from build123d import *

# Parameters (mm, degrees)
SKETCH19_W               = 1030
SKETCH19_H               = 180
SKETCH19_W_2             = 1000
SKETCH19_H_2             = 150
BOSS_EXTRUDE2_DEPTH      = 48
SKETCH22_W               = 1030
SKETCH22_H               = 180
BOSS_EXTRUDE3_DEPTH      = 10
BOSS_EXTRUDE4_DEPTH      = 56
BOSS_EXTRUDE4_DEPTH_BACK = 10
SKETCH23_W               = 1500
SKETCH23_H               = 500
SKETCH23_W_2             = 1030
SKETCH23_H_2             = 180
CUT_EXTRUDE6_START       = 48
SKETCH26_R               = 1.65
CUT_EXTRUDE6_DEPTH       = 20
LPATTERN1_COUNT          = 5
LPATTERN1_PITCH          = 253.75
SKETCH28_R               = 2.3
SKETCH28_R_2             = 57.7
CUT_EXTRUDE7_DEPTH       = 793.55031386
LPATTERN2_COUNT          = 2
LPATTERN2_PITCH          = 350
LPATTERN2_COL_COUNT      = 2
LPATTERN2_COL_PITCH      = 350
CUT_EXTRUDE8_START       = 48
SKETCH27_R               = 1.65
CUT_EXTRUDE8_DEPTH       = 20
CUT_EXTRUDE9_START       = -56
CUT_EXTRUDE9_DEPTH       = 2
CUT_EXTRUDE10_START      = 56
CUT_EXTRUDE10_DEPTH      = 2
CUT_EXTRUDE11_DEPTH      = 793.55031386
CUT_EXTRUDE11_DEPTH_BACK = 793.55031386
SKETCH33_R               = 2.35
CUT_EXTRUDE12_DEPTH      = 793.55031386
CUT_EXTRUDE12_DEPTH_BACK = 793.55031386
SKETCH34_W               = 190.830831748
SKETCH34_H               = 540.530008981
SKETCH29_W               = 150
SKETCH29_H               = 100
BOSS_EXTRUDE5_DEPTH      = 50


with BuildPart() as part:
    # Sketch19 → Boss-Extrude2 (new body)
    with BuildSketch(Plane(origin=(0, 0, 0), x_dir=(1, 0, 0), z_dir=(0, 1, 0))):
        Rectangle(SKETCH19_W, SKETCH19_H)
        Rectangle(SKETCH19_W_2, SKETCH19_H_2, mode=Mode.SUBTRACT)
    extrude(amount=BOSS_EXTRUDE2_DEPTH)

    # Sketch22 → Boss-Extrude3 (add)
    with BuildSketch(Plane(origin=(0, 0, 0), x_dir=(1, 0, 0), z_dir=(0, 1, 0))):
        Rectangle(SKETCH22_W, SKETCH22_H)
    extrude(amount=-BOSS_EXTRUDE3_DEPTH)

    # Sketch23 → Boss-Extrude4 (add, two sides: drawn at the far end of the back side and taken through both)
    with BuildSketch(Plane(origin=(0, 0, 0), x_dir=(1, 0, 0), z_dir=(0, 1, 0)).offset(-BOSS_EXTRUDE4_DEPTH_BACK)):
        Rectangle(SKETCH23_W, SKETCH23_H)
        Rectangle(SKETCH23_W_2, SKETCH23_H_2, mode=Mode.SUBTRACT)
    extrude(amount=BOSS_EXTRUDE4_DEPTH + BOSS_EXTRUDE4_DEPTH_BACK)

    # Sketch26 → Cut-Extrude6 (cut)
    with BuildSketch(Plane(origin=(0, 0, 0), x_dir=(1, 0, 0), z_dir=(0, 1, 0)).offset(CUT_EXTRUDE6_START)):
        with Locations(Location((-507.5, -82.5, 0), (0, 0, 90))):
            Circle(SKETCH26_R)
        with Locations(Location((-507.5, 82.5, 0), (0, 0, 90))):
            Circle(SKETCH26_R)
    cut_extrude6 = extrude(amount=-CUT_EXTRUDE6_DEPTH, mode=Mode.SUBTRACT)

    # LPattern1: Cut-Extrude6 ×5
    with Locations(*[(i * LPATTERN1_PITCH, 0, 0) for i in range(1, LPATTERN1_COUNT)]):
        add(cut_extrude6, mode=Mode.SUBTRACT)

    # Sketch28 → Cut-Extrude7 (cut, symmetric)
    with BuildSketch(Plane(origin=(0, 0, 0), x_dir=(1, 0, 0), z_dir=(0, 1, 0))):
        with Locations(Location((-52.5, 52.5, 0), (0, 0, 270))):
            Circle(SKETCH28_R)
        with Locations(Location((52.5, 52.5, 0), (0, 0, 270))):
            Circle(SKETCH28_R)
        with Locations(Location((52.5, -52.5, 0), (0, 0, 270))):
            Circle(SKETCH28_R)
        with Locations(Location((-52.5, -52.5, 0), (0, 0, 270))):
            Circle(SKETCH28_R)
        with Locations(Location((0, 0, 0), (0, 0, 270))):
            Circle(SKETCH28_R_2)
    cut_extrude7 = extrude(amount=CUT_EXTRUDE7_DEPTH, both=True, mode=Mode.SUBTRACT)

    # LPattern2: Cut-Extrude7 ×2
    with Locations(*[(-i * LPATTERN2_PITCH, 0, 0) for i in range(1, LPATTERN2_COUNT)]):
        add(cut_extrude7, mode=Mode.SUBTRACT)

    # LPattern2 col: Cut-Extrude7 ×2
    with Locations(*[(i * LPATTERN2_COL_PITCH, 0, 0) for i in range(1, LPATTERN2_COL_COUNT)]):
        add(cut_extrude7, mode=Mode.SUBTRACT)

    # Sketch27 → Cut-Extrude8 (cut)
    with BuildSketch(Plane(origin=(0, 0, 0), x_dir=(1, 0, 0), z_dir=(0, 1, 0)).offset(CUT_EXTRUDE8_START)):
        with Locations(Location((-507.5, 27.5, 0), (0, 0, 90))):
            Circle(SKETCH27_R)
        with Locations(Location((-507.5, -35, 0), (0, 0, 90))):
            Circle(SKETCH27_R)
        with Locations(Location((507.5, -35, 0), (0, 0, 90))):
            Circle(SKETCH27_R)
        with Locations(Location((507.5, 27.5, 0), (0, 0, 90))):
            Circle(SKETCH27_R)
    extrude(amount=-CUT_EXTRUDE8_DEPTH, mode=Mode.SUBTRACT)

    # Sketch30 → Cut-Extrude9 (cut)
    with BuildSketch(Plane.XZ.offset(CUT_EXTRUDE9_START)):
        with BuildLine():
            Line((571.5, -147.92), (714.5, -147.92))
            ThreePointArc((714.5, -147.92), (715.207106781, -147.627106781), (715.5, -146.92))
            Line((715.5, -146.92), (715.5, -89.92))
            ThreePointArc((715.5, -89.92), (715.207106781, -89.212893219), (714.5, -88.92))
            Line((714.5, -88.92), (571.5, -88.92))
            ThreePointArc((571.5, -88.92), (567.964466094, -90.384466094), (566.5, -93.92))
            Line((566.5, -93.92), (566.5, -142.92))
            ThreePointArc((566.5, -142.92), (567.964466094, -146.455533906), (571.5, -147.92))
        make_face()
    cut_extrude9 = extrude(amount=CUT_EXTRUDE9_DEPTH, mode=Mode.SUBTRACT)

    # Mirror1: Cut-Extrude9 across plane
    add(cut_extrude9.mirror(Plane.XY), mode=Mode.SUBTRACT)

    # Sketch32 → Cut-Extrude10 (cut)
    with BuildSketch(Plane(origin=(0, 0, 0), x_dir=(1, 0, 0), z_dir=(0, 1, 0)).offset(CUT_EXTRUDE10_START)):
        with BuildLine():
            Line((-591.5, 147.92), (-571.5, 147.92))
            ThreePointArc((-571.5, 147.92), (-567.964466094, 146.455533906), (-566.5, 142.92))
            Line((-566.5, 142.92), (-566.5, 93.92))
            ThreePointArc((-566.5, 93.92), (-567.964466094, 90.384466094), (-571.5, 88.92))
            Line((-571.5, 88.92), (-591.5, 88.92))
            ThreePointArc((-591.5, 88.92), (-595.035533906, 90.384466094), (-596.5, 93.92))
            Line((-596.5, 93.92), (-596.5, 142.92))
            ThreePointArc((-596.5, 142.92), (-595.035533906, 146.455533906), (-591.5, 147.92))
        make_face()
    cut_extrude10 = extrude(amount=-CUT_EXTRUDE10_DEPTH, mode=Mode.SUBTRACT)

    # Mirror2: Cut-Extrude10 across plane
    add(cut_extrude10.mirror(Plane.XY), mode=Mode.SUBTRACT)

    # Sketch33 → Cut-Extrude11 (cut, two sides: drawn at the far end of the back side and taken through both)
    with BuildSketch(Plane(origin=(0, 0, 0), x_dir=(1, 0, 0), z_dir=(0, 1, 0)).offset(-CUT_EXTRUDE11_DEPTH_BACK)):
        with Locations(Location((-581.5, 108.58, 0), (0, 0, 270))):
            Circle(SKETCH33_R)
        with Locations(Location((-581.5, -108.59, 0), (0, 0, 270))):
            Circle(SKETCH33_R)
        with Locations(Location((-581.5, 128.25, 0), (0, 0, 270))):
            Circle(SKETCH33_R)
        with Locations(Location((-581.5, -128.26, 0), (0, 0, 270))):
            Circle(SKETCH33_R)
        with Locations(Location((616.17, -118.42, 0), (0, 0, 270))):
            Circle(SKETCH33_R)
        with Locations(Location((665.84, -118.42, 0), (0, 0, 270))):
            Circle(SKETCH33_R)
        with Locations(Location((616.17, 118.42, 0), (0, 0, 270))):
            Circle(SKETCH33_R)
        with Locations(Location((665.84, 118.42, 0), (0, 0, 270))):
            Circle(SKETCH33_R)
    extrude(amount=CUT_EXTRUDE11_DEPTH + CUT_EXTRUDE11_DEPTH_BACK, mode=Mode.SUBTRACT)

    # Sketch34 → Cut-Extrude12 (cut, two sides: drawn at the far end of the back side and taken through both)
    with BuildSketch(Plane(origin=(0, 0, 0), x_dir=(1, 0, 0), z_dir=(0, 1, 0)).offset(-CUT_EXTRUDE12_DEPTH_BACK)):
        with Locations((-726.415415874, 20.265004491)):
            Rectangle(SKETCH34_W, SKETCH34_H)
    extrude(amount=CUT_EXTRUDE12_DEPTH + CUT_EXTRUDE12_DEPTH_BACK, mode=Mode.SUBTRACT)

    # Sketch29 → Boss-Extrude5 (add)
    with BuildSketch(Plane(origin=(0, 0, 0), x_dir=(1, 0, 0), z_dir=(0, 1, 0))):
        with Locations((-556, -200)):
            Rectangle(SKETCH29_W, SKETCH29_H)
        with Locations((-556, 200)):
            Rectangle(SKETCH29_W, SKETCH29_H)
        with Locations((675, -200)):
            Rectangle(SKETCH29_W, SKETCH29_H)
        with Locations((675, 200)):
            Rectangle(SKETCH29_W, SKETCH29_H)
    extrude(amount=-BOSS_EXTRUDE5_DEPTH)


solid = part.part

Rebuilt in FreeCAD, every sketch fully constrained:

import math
import FreeCAD as App
import Part
import Sketcher

V = App.Vector
Q = App.Units.Quantity


def add_polygon(sketch, points):
    """Adds a closed chain of lines whose ends are joined by coincident constraints."""
    first, n = sketch.GeometryCount, len(points)
    for a, b in zip(points, points[1:] + points[:1]):
        sketch.addGeometry(Part.LineSegment(App.Vector(*a, 0), App.Vector(*b, 0)), False)
    for i in range(n):
        sketch.addConstraint(Sketcher.Constraint("Coincident", first + i, 2, first + (i + 1) % n, 1))

doc = App.newDocument("Part")
body = doc.addObject("PartDesign::Body", "Body")

# Sketch on XZ plane
sketch1 = body.newObject("Sketcher::SketchObject", "Sketch")
sketch1.AttachmentSupport = (doc.getObject("XZ_Plane"), [""])
sketch1.MapMode = "FlatFace"
add_polygon(sketch1, [(-515, -90), (-515, 90), (515, 90), (515, -90)])  # lines 0-3
add_polygon(sketch1, [(500, 75), (-500, 75), (-500, -75), (500, -75)])  # lines 4-7
sketch1.addConstraint(Sketcher.Constraint("Vertical", 0))
sketch1.addConstraint(Sketcher.Constraint("Horizontal", 1))
sketch1.addConstraint(Sketcher.Constraint("Vertical", 2))
sketch1.addConstraint(Sketcher.Constraint("Horizontal", 3))
sketch1.addConstraint(Sketcher.Constraint("Horizontal", 4))
sketch1.addConstraint(Sketcher.Constraint("Vertical", 5))
sketch1.addConstraint(Sketcher.Constraint("Horizontal", 6))
sketch1.addConstraint(Sketcher.Constraint("Vertical", 7))
sketch1.addConstraint(Sketcher.Constraint("Symmetric", 0, 2, 2, 2, -1, 1))
sketch1.addConstraint(Sketcher.Constraint("Symmetric", 4, 2, 6, 2, -1, 1))
sketch1.addConstraint(Sketcher.Constraint("DistanceX", 1, 1, 1, 2, Q("1030 mm")))
sketch1.addConstraint(Sketcher.Constraint("DistanceX", 4, 2, 4, 1, Q("1000 mm")))
sketch1.addConstraint(Sketcher.Constraint("DistanceY", 0, 1, 0, 2, Q("180 mm")))
sketch1.addConstraint(Sketcher.Constraint("DistanceY", 5, 2, 5, 1, Q("150 mm")))
pad1 = body.newObject("PartDesign::Pad", "Pad")
pad1.Profile = sketch1
pad1.Length = 48
pad1.Reversed = True

# Sketch on XZ plane
sketch2 = body.newObject("Sketcher::SketchObject", "Sketch001")
sketch2.AttachmentSupport = (doc.getObject("XZ_Plane"), [""])
sketch2.MapMode = "FlatFace"
add_polygon(sketch2, [(-515, -90), (-515, 90), (515, 90), (515, -90)])  # lines 0-3
sketch2.addConstraint(Sketcher.Constraint("Vertical", 0))
sketch2.addConstraint(Sketcher.Constraint("Horizontal", 1))
sketch2.addConstraint(Sketcher.Constraint("Vertical", 2))
sketch2.addConstraint(Sketcher.Constraint("Horizontal", 3))
sketch2.addConstraint(Sketcher.Constraint("Symmetric", 0, 2, 2, 2, -1, 1))
sketch2.addConstraint(Sketcher.Constraint("DistanceX", 1, 1, 1, 2, Q("1030 mm")))
sketch2.addConstraint(Sketcher.Constraint("DistanceY", 0, 1, 0, 2, Q("180 mm")))
pad2 = body.newObject("PartDesign::Pad", "Pad001")
pad2.Profile = sketch2
pad2.Length = 10

# Sketch on XZ plane
sketch3 = body.newObject("Sketcher::SketchObject", "Sketch002")
sketch3.AttachmentSupport = (doc.getObject("XZ_Plane"), [""])
sketch3.MapMode = "FlatFace"
add_polygon(sketch3, [(-750, -250), (-750, 250), (750, 250), (750, -250)])  # lines 0-3
add_polygon(sketch3, [(515, 90), (-515, 90), (-515, -90), (515, -90)])  # lines 4-7
sketch3.addConstraint(Sketcher.Constraint("Vertical", 0))
sketch3.addConstraint(Sketcher.Constraint("Horizontal", 1))
sketch3.addConstraint(Sketcher.Constraint("Vertical", 2))
sketch3.addConstraint(Sketcher.Constraint("Horizontal", 3))
sketch3.addConstraint(Sketcher.Constraint("Horizontal", 4))
sketch3.addConstraint(Sketcher.Constraint("Vertical", 5))
sketch3.addConstraint(Sketcher.Constraint("Horizontal", 6))
sketch3.addConstraint(Sketcher.Constraint("Vertical", 7))
sketch3.addConstraint(Sketcher.Constraint("Symmetric", 0, 2, 2, 2, -1, 1))
sketch3.addConstraint(Sketcher.Constraint("Symmetric", 4, 2, 6, 2, -1, 1))
sketch3.addConstraint(Sketcher.Constraint("DistanceX", 1, 1, 1, 2, Q("1500 mm")))
sketch3.addConstraint(Sketcher.Constraint("DistanceX", 4, 2, 4, 1, Q("1030 mm")))
sketch3.addConstraint(Sketcher.Constraint("DistanceY", 0, 1, 0, 2, Q("500 mm")))
sketch3.addConstraint(Sketcher.Constraint("DistanceY", 5, 2, 5, 1, Q("180 mm")))
pad3 = body.newObject("PartDesign::Pad", "Pad002")
pad3.Profile = sketch3
pad3.Type = "TwoLengths"
pad3.Length = 56
pad3.Length2 = 10
pad3.Reversed = True

# Sketch on XZ plane
sketch4 = body.newObject("Sketcher::SketchObject", "Sketch003")
sketch4.AttachmentSupport = (doc.getObject("XZ_Plane"), [""])
sketch4.MapMode = "FlatFace"
sketch4.AttachmentOffset = App.Placement(V(0, 0, -48), App.Rotation())
sketch4.addGeometry(Part.Circle(V(-507.5, 82.5, 0), V(0, 0, 1), 1.6), False)
sketch4.addGeometry(Part.Circle(V(-507.5, -82.5, 0), V(0, 0, 1), 1.6), False)
sketch4.addConstraint(Sketcher.Constraint("Equal", 0, 1))
sketch4.addConstraint(Sketcher.Constraint("Symmetric", 0, 3, 1, 3, -1))
sketch4.addConstraint(Sketcher.Constraint("Diameter", 0, Q("3.3 mm")))
sketch4.addConstraint(Sketcher.Constraint("DistanceY", 1, 3, 0, 3, Q("165 mm")))
sketch4.addConstraint(Sketcher.Constraint("DistanceX", 0, 3, -1, 1, Q("507.5 mm")))
pocket1 = body.newObject("PartDesign::Pocket", "Pocket")
pocket1.Profile = sketch4
pocket1.Length = 20
pocket1.Reversed = True
doc.recompute()

linearpattern = body.newObject("PartDesign::LinearPattern", "LinearPattern")
linearpattern.Originals = [pocket1]
linearpattern.Direction = (doc.getObject("X_Axis"), [""])
linearpattern.Mode = "offset"
linearpattern.Offset = 253.75
linearpattern.Occurrences = 5
body.Tip = linearpattern

# Sketch on XZ plane
sketch5 = body.newObject("Sketcher::SketchObject", "Sketch004")
sketch5.AttachmentSupport = (doc.getObject("XZ_Plane"), [""])
sketch5.MapMode = "FlatFace"
sketch5.addGeometry(Part.Circle(V(-52.5, -52.5, 0), V(0, 0, 1), 2.3), False)
sketch5.addGeometry(Part.Circle(V(52.5, -52.5, 0), V(0, 0, 1), 2.3), False)
sketch5.addGeometry(Part.Circle(V(52.5, 52.5, 0), V(0, 0, 1), 2.3), False)
sketch5.addGeometry(Part.Circle(V(-52.5, 52.5, 0), V(0, 0, 1), 2.3), False)
sketch5.addGeometry(Part.Circle(V(0, 0, 0), V(0, 0, 1), 57.7), False)
sketch5.addConstraint(Sketcher.Constraint("Coincident", 4, 3, -1, 1))
sketch5.addConstraint(Sketcher.Constraint("Equal", 0, 1))
sketch5.addConstraint(Sketcher.Constraint("Equal", 1, 2))
sketch5.addConstraint(Sketcher.Constraint("Equal", 2, 3))
sketch5.addConstraint(Sketcher.Constraint("Symmetric", 0, 3, 2, 3, -1, 1))
sketch5.addConstraint(Sketcher.Constraint("Symmetric", 1, 3, 3, 3, -1, 1))
sketch5.addConstraint(Sketcher.Constraint("Symmetric", 0, 3, 1, 3, -2))
sketch5.addConstraint(Sketcher.Constraint("Diameter", 0, Q("4.6 mm")))
sketch5.addConstraint(Sketcher.Constraint("Diameter", 4, Q("115.4 mm")))
sketch5.addConstraint(Sketcher.Constraint("DistanceX", 0, 3, 1, 3, Q("105 mm")))
sketch5.addConstraint(Sketcher.Constraint("DistanceY", 1, 3, 2, 3, Q("105 mm")))
pocket2 = body.newObject("PartDesign::Pocket", "Pocket001")
pocket2.Profile = sketch5
pocket2.Length = 1587.100628
pocket2.Midplane = True
doc.recompute()

linearpattern2 = body.newObject("PartDesign::LinearPattern", "LinearPattern001")
linearpattern2.Originals = [pocket2]
linearpattern2.Direction = (doc.getObject("X_Axis"), [""])
linearpattern2.Mode = "offset"
linearpattern2.Offset = 350
linearpattern2.Occurrences = 2
linearpattern2.Reversed = True
body.Tip = linearpattern2
doc.recompute()

linearpattern3 = body.newObject("PartDesign::LinearPattern", "LinearPattern002")
linearpattern3.Originals = [pocket2]
linearpattern3.Direction = (doc.getObject("X_Axis"), [""])
linearpattern3.Mode = "offset"
linearpattern3.Offset = 350
linearpattern3.Occurrences = 2
body.Tip = linearpattern3

# Sketch on XZ plane
sketch6 = body.newObject("Sketcher::SketchObject", "Sketch005")
sketch6.AttachmentSupport = (doc.getObject("XZ_Plane"), [""])
sketch6.MapMode = "FlatFace"
sketch6.AttachmentOffset = App.Placement(V(0, 0, -48), App.Rotation())
sketch6.addGeometry(Part.Circle(V(-507.5, -27.5, 0), V(0, 0, 1), 1.6), False)
sketch6.addGeometry(Part.Circle(V(-507.5, 35, 0), V(0, 0, 1), 1.6), False)
sketch6.addGeometry(Part.Circle(V(507.5, 35, 0), V(0, 0, 1), 1.6), False)
sketch6.addGeometry(Part.Circle(V(507.5, -27.5, 0), V(0, 0, 1), 1.6), False)
sketch6.addConstraint(Sketcher.Constraint("Equal", 0, 1))
sketch6.addConstraint(Sketcher.Constraint("Equal", 1, 2))
sketch6.addConstraint(Sketcher.Constraint("Equal", 2, 3))
sketch6.addConstraint(Sketcher.Constraint("Symmetric", 1, 3, 2, 3, -2))
sketch6.addConstraint(Sketcher.Constraint("Symmetric", 0, 3, 3, 3, -2))
sketch6.addConstraint(Sketcher.Constraint("Vertical", 0, 3, 1, 3))
sketch6.addConstraint(Sketcher.Constraint("Diameter", 0, Q("3.3 mm")))
sketch6.addConstraint(Sketcher.Constraint("DistanceY", -1, 1, 1, 3, Q("35 mm")))
sketch6.addConstraint(Sketcher.Constraint("DistanceX", 1, 3, 2, 3, Q("1015 mm")))
sketch6.addConstraint(Sketcher.Constraint("DistanceY", 0, 3, -1, 1, Q("27.5 mm")))
pocket3 = body.newObject("PartDesign::Pocket", "Pocket002")
pocket3.Profile = sketch6
pocket3.Length = 20
pocket3.Reversed = True

# Sketch on XZ plane
sketch7 = body.newObject("Sketcher::SketchObject", "Sketch006")
sketch7.AttachmentSupport = (doc.getObject("XZ_Plane"), [""])
sketch7.MapMode = "FlatFace"
sketch7.AttachmentOffset = App.Placement(V(0, 0, -56), App.Rotation())
sketch7.addGeometry(Part.LineSegment(V(571.5, -147.9, 0), V(714.5, -147.9, 0)), False)
sketch7.addGeometry(Part.ArcOfCircle(Part.Circle(V(714.5, -146.9, 0), V(0, 0, 1), 1), math.radians(-90), math.radians(0)), False)
sketch7.addGeometry(Part.LineSegment(V(715.5, -146.9, 0), V(715.5, -89.9, 0)), False)
sketch7.addGeometry(Part.ArcOfCircle(Part.Circle(V(714.5, -89.9, 0), V(0, 0, 1), 1), math.radians(0), math.radians(90)), False)
sketch7.addGeometry(Part.LineSegment(V(714.5, -88.9, 0), V(571.5, -88.9, 0)), False)
sketch7.addGeometry(Part.ArcOfCircle(Part.Circle(V(571.5, -93.9, 0), V(0, 0, 1), 5), math.radians(90), math.radians(180)), False)
sketch7.addGeometry(Part.LineSegment(V(566.5, -93.9, 0), V(566.5, -142.9, 0)), False)
sketch7.addGeometry(Part.ArcOfCircle(Part.Circle(V(571.5, -142.9, 0), V(0, 0, 1), 5), math.radians(180), math.radians(270)), False)
sketch7.addConstraint(Sketcher.Constraint("Tangent", 0, 2, 1, 1))
sketch7.addConstraint(Sketcher.Constraint("Tangent", 1, 2, 2, 1))
sketch7.addConstraint(Sketcher.Constraint("Tangent", 2, 2, 3, 1))
sketch7.addConstraint(Sketcher.Constraint("Tangent", 3, 2, 4, 1))
sketch7.addConstraint(Sketcher.Constraint("Tangent", 4, 2, 5, 1))
sketch7.addConstraint(Sketcher.Constraint("Tangent", 5, 2, 6, 1))
sketch7.addConstraint(Sketcher.Constraint("Tangent", 6, 2, 7, 1))
sketch7.addConstraint(Sketcher.Constraint("Tangent", 7, 2, 0, 1))
sketch7.addConstraint(Sketcher.Constraint("Horizontal", 0))
sketch7.addConstraint(Sketcher.Constraint("Vertical", 2))
sketch7.addConstraint(Sketcher.Constraint("Horizontal", 4))
sketch7.addConstraint(Sketcher.Constraint("Vertical", 6))
sketch7.addConstraint(Sketcher.Constraint("Equal", 1, 3))
sketch7.addConstraint(Sketcher.Constraint("Equal", 5, 7))
sketch7.addConstraint(Sketcher.Constraint("Radius", 1, Q("1 mm")))
sketch7.addConstraint(Sketcher.Constraint("Radius", 5, Q("5 mm")))
sketch7.addConstraint(Sketcher.Constraint("DistanceX", 0, 1, 0, 2, Q("143 mm")))
sketch7.addConstraint(Sketcher.Constraint("DistanceY", 2, 1, 2, 2, Q("57 mm")))
sketch7.addConstraint(Sketcher.Constraint("DistanceX", -1, 1, 1, 3, Q("714.5 mm")))
sketch7.addConstraint(Sketcher.Constraint("DistanceY", 1, 3, -1, 1, Q("146.92 mm")))
pocket4 = body.newObject("PartDesign::Pocket", "Pocket003")
pocket4.Profile = sketch7
pocket4.Length = 2
pocket4.Reversed = True
doc.recompute()

mirrored = body.newObject("PartDesign::Mirrored", "Mirrored")
mirrored.Originals = [pocket4]
mirrored.MirrorPlane = (doc.getObject("XY_Plane"), [""])
body.Tip = mirrored

# Sketch on XZ plane
sketch8 = body.newObject("Sketcher::SketchObject", "Sketch007")
sketch8.AttachmentSupport = (doc.getObject("XZ_Plane"), [""])
sketch8.MapMode = "FlatFace"
sketch8.AttachmentOffset = App.Placement(V(0, 0, -56), App.Rotation())
sketch8.addGeometry(Part.LineSegment(V(-572, -148, 0), V(-592, -148, 0)), False)
sketch8.addGeometry(Part.ArcOfCircle(Part.Circle(V(-592, -143, 0), V(0, 0, 1), 5), math.radians(180), math.radians(270)), False)
sketch8.addGeometry(Part.LineSegment(V(-596, -143, 0), V(-596, -94, 0)), False)
sketch8.addGeometry(Part.ArcOfCircle(Part.Circle(V(-592, -94, 0), V(0, 0, 1), 5), math.radians(90), math.radians(180)), False)
sketch8.addGeometry(Part.LineSegment(V(-592, -89, 0), V(-572, -89, 0)), False)
sketch8.addGeometry(Part.ArcOfCircle(Part.Circle(V(-572, -94, 0), V(0, 0, 1), 5), math.radians(0), math.radians(90)), False)
sketch8.addGeometry(Part.LineSegment(V(-566, -94, 0), V(-566, -143, 0)), False)
sketch8.addGeometry(Part.ArcOfCircle(Part.Circle(V(-572, -143, 0), V(0, 0, 1), 5), math.radians(-90), math.radians(0)), False)
sketch8.addConstraint(Sketcher.Constraint("Tangent", 0, 2, 1, 2))
sketch8.addConstraint(Sketcher.Constraint("Tangent", 1, 1, 2, 1))
sketch8.addConstraint(Sketcher.Constraint("Tangent", 2, 2, 3, 2))
sketch8.addConstraint(Sketcher.Constraint("Tangent", 3, 1, 4, 1))
sketch8.addConstraint(Sketcher.Constraint("Tangent", 4, 2, 5, 2))
sketch8.addConstraint(Sketcher.Constraint("Tangent", 5, 1, 6, 1))
sketch8.addConstraint(Sketcher.Constraint("Tangent", 6, 2, 7, 2))
sketch8.addConstraint(Sketcher.Constraint("Tangent", 7, 1, 0, 1))
sketch8.addConstraint(Sketcher.Constraint("Horizontal", 0))
sketch8.addConstraint(Sketcher.Constraint("Vertical", 2))
sketch8.addConstraint(Sketcher.Constraint("Horizontal", 4))
sketch8.addConstraint(Sketcher.Constraint("Vertical", 6))
sketch8.addConstraint(Sketcher.Constraint("Equal", 1, 3))
sketch8.addConstraint(Sketcher.Constraint("Equal", 3, 5))
sketch8.addConstraint(Sketcher.Constraint("Equal", 5, 7))
sketch8.addConstraint(Sketcher.Constraint("Radius", 1, Q("5 mm")))
sketch8.addConstraint(Sketcher.Constraint("DistanceX", 0, 2, 0, 1, Q("20 mm")))
sketch8.addConstraint(Sketcher.Constraint("DistanceY", 2, 1, 2, 2, Q("49 mm")))
sketch8.addConstraint(Sketcher.Constraint("DistanceX", 1, 3, -1, 1, Q("591.5 mm")))
sketch8.addConstraint(Sketcher.Constraint("DistanceY", 1, 3, -1, 1, Q("142.92 mm")))
pocket5 = body.newObject("PartDesign::Pocket", "Pocket004")
pocket5.Profile = sketch8
pocket5.Length = 2
pocket5.Reversed = True
doc.recompute()

mirrored2 = body.newObject("PartDesign::Mirrored", "Mirrored001")
mirrored2.Originals = [pocket5]
mirrored2.MirrorPlane = (doc.getObject("XY_Plane"), [""])
body.Tip = mirrored2

# Sketch on XZ plane
sketch9 = body.newObject("Sketcher::SketchObject", "Sketch008")
sketch9.AttachmentSupport = (doc.getObject("XZ_Plane"), [""])
sketch9.MapMode = "FlatFace"
sketch9.addGeometry(Part.Circle(V(-581.5, -108.6, 0), V(0, 0, 1), 2.4), False)
sketch9.addGeometry(Part.Circle(V(-581.5, 108.6, 0), V(0, 0, 1), 2.4), False)
sketch9.addGeometry(Part.Circle(V(-581.5, -128.2, 0), V(0, 0, 1), 2.4), False)
sketch9.addGeometry(Part.Circle(V(-581.5, 128.3, 0), V(0, 0, 1), 2.4), False)
sketch9.addGeometry(Part.Circle(V(616.2, 118.4, 0), V(0, 0, 1), 2.4), False)
sketch9.addGeometry(Part.Circle(V(665.8, 118.4, 0), V(0, 0, 1), 2.4), False)
sketch9.addGeometry(Part.Circle(V(616.2, -118.4, 0), V(0, 0, 1), 2.4), False)
sketch9.addGeometry(Part.Circle(V(665.8, -118.4, 0), V(0, 0, 1), 2.4), False)
sketch9.addConstraint(Sketcher.Constraint("Equal", 0, 1))
sketch9.addConstraint(Sketcher.Constraint("Equal", 1, 2))
sketch9.addConstraint(Sketcher.Constraint("Equal", 2, 3))
sketch9.addConstraint(Sketcher.Constraint("Equal", 3, 4))
sketch9.addConstraint(Sketcher.Constraint("Equal", 4, 5))
sketch9.addConstraint(Sketcher.Constraint("Equal", 5, 6))
sketch9.addConstraint(Sketcher.Constraint("Equal", 6, 7))
sketch9.addConstraint(Sketcher.Constraint("Symmetric", 4, 3, 6, 3, -1))
sketch9.addConstraint(Sketcher.Constraint("Symmetric", 5, 3, 7, 3, -1))
sketch9.addConstraint(Sketcher.Constraint("Horizontal", 4, 3, 5, 3))
sketch9.addConstraint(Sketcher.Constraint("Vertical", 0, 3, 1, 3))
sketch9.addConstraint(Sketcher.Constraint("Vertical", 1, 3, 2, 3))
sketch9.addConstraint(Sketcher.Constraint("Vertical", 2, 3, 3, 3))
sketch9.addConstraint(Sketcher.Constraint("Diameter", 0, Q("4.7 mm")))
sketch9.addConstraint(Sketcher.Constraint("DistanceY", 0, 3, 4, 3, Q("227 mm")))
sketch9.addConstraint(Sketcher.Constraint("DistanceX", 0, 3, -1, 1, Q("581.5 mm")))
sketch9.addConstraint(Sketcher.Constraint("DistanceY", 0, 3, -1, 1, Q("108.58 mm")))
sketch9.addConstraint(Sketcher.Constraint("DistanceY", -1, 1, 1, 3, Q("108.59 mm")))
sketch9.addConstraint(Sketcher.Constraint("DistanceY", 2, 3, -1, 1, Q("128.25 mm")))
sketch9.addConstraint(Sketcher.Constraint("DistanceY", -1, 1, 3, 3, Q("128.26 mm")))
sketch9.addConstraint(Sketcher.Constraint("DistanceX", -1, 1, 4, 3, Q("616.17 mm")))
sketch9.addConstraint(Sketcher.Constraint("DistanceX", -1, 1, 5, 3, Q("665.84 mm")))
pocket6 = body.newObject("PartDesign::Pocket", "Pocket005")
pocket6.Profile = sketch9
pocket6.Type = "ThroughAll"
pocket6.Midplane = True

# Sketch on XZ plane
sketch10 = body.newObject("Sketcher::SketchObject", "Sketch009")
sketch10.AttachmentSupport = (doc.getObject("XZ_Plane"), [""])
sketch10.MapMode = "FlatFace"
add_polygon(sketch10, [(-822, -291), (-822, 250), (-631, 250), (-631, -291)])  # lines 0-3
sketch10.addConstraint(Sketcher.Constraint("Vertical", 0))
sketch10.addConstraint(Sketcher.Constraint("Horizontal", 1))
sketch10.addConstraint(Sketcher.Constraint("Vertical", 2))
sketch10.addConstraint(Sketcher.Constraint("Horizontal", 3))
sketch10.addConstraint(Sketcher.Constraint("DistanceY", -1, 1, 0, 2, Q("250 mm")))
sketch10.addConstraint(Sketcher.Constraint("DistanceX", 1, 2, -1, 1, Q("631 mm")))
sketch10.addConstraint(Sketcher.Constraint("DistanceX", 1, 1, 1, 2, Q("190.830832 mm")))
sketch10.addConstraint(Sketcher.Constraint("DistanceY", 0, 1, 0, 2, Q("540.530009 mm")))
pocket7 = body.newObject("PartDesign::Pocket", "Pocket006")
pocket7.Profile = sketch10
pocket7.Type = "ThroughAll"
pocket7.Midplane = True

# Sketch on XZ plane
sketch11 = body.newObject("Sketcher::SketchObject", "Sketch010")
sketch11.AttachmentSupport = (doc.getObject("XZ_Plane"), [""])
sketch11.MapMode = "FlatFace"
add_polygon(sketch11, [(-631, 150), (-631, 250), (-481, 250), (-481, 150)])  # lines 0-3
add_polygon(sketch11, [(-631, -250), (-631, -150), (-481, -150), (-481, -250)])  # lines 4-7
add_polygon(sketch11, [(600, 150), (600, 250), (750, 250), (750, 150)])  # lines 8-11
add_polygon(sketch11, [(600, -250), (600, -150), (750, -150), (750, -250)])  # lines 12-15
sketch11.addConstraint(Sketcher.Constraint("Vertical", 0))
sketch11.addConstraint(Sketcher.Constraint("Horizontal", 1))
sketch11.addConstraint(Sketcher.Constraint("Vertical", 2))
sketch11.addConstraint(Sketcher.Constraint("Horizontal", 3))
sketch11.addConstraint(Sketcher.Constraint("Vertical", 4))
sketch11.addConstraint(Sketcher.Constraint("Horizontal", 5))
sketch11.addConstraint(Sketcher.Constraint("Vertical", 6))
sketch11.addConstraint(Sketcher.Constraint("Horizontal", 7))
sketch11.addConstraint(Sketcher.Constraint("Vertical", 8))
sketch11.addConstraint(Sketcher.Constraint("Horizontal", 9))
sketch11.addConstraint(Sketcher.Constraint("Vertical", 10))
sketch11.addConstraint(Sketcher.Constraint("Horizontal", 11))
sketch11.addConstraint(Sketcher.Constraint("Vertical", 12))
sketch11.addConstraint(Sketcher.Constraint("Horizontal", 13))
sketch11.addConstraint(Sketcher.Constraint("Vertical", 14))
sketch11.addConstraint(Sketcher.Constraint("Horizontal", 15))
sketch11.addConstraint(Sketcher.Constraint("Symmetric", 3, 2, 4, 2, -1))
sketch11.addConstraint(Sketcher.Constraint("Symmetric", 1, 2, 6, 2, -1))
sketch11.addConstraint(Sketcher.Constraint("Symmetric", 11, 2, 12, 2, -1))
sketch11.addConstraint(Sketcher.Constraint("Symmetric", 9, 2, 14, 2, -1))
sketch11.addConstraint(Sketcher.Constraint("Horizontal", 1, 2, 8, 2))
sketch11.addConstraint(Sketcher.Constraint("Horizontal", 3, 2, 10, 2))
sketch11.addConstraint(Sketcher.Constraint("Equal", 7, 9))
sketch11.addConstraint(Sketcher.Constraint("DistanceX", 1, 1, 1, 2, Q("150 mm")))
sketch11.addConstraint(Sketcher.Constraint("DistanceY", 0, 1, 0, 2, Q("100 mm")))
sketch11.addConstraint(Sketcher.Constraint("DistanceX", 0, 2, -1, 1, Q("631 mm")))
sketch11.addConstraint(Sketcher.Constraint("DistanceY", -1, 1, 0, 2, Q("250 mm")))
sketch11.addConstraint(Sketcher.Constraint("DistanceX", -1, 1, 8, 2, Q("600 mm")))
pad4 = body.newObject("PartDesign::Pad", "Pad003")
pad4.Profile = sketch11
pad4.Length = 50

doc.recompute()
